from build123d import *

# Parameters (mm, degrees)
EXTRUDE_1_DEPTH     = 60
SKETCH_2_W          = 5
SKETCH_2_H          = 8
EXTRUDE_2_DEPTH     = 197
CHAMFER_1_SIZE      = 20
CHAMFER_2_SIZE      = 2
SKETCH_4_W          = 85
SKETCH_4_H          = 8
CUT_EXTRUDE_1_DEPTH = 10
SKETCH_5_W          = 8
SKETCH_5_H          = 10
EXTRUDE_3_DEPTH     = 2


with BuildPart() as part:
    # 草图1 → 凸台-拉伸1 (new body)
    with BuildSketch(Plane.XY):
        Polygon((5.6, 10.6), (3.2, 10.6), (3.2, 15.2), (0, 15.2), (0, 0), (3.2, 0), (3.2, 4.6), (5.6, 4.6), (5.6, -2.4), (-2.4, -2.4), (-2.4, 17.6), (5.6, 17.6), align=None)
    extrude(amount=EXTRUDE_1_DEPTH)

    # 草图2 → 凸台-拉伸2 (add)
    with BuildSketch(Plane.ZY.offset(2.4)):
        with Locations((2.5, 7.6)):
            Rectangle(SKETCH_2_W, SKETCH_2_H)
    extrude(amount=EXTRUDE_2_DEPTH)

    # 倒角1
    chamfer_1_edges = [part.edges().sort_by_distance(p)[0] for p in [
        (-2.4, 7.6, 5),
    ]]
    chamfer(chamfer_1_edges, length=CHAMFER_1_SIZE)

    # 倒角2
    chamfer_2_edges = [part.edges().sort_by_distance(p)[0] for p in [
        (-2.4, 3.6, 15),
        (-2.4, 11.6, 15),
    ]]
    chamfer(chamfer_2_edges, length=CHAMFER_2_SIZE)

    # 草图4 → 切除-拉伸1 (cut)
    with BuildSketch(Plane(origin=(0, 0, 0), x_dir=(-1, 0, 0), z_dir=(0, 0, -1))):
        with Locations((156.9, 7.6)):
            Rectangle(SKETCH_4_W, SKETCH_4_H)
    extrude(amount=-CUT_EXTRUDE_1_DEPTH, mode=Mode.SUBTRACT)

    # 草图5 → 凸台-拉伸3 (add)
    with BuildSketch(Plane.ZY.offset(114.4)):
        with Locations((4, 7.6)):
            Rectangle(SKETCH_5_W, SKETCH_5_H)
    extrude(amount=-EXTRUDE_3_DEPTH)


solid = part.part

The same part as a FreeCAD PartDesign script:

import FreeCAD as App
import Part
import Sketcher
from FreeCAD import Vector


def edges_at(feature, points):
    """Names of the edges that pass closest to the given points."""
    edges = feature.Shape.Edges
    near = lambda p: min(range(len(edges)), key=lambda i: edges[i].distToShape(Part.Vertex(*p))[0])
    return sorted({f"Edge{near(p) + 1}" for p in points})


def add_polygon(sketch, points):
    """Adds a closed chain of lines whose ends are joined by coincident constraints."""
    first, n = sketch.GeometryCount, len(points)
    for a, b in zip(points, points[1:] + points[:1]):
        sketch.addGeometry(Part.LineSegment(App.Vector(*a, 0), App.Vector(*b, 0)), False)
    for i in range(n):
        sketch.addConstraint(Sketcher.Constraint("Coincident", first + i, 2, first + (i + 1) % n, 1))

doc = App.newDocument("Part")
body = doc.addObject("PartDesign::Body", "Body")

# Sketch on XY plane
sketch1 = body.newObject("Sketcher::SketchObject", "Sketch")
sketch1.AttachmentSupport = (doc.getObject("XY_Plane"), [""])
sketch1.MapMode = "FlatFace"
add_polygon(sketch1, [(3.2, 10.6), (5.6, 10.6), (5.6, 17.6), (-2.4, 17.6), (-2.4, -2.4), (5.6, -2.4), (5.6, 4.6), (3.2, 4.6), (3.2, 0), (0, 0), (0, 15.2), (3.2, 15.2)])  # lines 0-11
sketch1.addConstraint(Sketcher.Constraint("Horizontal", 0))
sketch1.addConstraint(Sketcher.Constraint("Vertical", 1))
sketch1.addConstraint(Sketcher.Constraint("Horizontal", 2))
sketch1.addConstraint(Sketcher.Constraint("Vertical", 3))
sketch1.addConstraint(Sketcher.Constraint("Horizontal", 4))
sketch1.addConstraint(Sketcher.Constraint("Vertical", 5))
sketch1.addConstraint(Sketcher.Constraint("Horizontal", 6))
sketch1.addConstraint(Sketcher.Constraint("Vertical", 7))
sketch1.addConstraint(Sketcher.Constraint("Horizontal", 8))
sketch1.addConstraint(Sketcher.Constraint("Vertical", 9))
sketch1.addConstraint(Sketcher.Constraint("Horizontal", 10))
sketch1.addConstraint(Sketcher.Constraint("Vertical", 11))
sketch1.addConstraint(Sketcher.Constraint("Coincident", 8, 2, -1, 1))
sketch1.addConstraint(Sketcher.Constraint("Vertical", 1, 2, 4, 2))
sketch1.addConstraint(Sketcher.Constraint("Vertical", 7, 2, 10, 2))
sketch1.addConstraint(Sketcher.Constraint("Equal", 1, 5))
sketch1.addConstraint(Sketcher.Constraint("Equal", 7, 11))
sketch1.addConstraint(Sketcher.Constraint("DistanceX", 2, 2, 2, 1, 8.0))
sketch1.addConstraint(Sketcher.Constraint("DistanceY", 1, 1, 1, 2, 7.0))
sketch1.addConstraint(Sketcher.Constraint("DistanceY", 3, 2, 3, 1, 20.0))
sketch1.addConstraint(Sketcher.Constraint("DistanceX", 0, 1, 0, 2, 2.4))
sketch1.addConstraint(Sketcher.Constraint("DistanceX", 8, 2, 8, 1, 3.2))
sketch1.addConstraint(Sketcher.Constraint("DistanceY", 7, 2, 7, 1, 4.6))
pad1 = body.newObject("PartDesign::Pad", "Pad")
pad1.Profile = sketch1
pad1.Length = 60

# Sketch on YZ plane
sketch2 = body.newObject("Sketcher::SketchObject", "Sketch001")
sketch2.AttachmentSupport = (doc.getObject("YZ_Plane"), [""])
sketch2.MapMode = "FlatFace"
sketch2.AttachmentOffset = App.Placement(Vector(0, 0, -2.4), App.Rotation())
add_polygon(sketch2, [(12, 0), (4, 0), (4, 5), (12, 5)])  # lines 0-3
sketch2.addConstraint(Sketcher.Constraint("Horizontal", 0))
sketch2.addConstraint(Sketcher.Constraint("Vertical", 1))
sketch2.addConstraint(Sketcher.Constraint("Horizontal", 2))
sketch2.addConstraint(Sketcher.Constraint("Vertical", 3))
sketch2.addConstraint(Sketcher.Constraint("PointOnObject", 0, 2, -1))
sketch2.addConstraint(Sketcher.Constraint("DistanceX", 0, 2, 0, 1, 8.0))
sketch2.addConstraint(Sketcher.Constraint("DistanceY", 1, 1, 1, 2, 5.0))
sketch2.addConstraint(Sketcher.Constraint("DistanceX", -1, 1, 0, 2, 3.6))
pad2 = body.newObject("PartDesign::Pad", "Pad001")
pad2.Profile = sketch2
pad2.Length = 197
pad2.Reversed = True
doc.recompute()

chamfer = body.newObject("PartDesign::Chamfer", "Chamfer")
chamfer.Base = (pad2, edges_at(pad2, [(-2.4, 7.6, 5)]))
chamfer.Size = 20
doc.recompute()

chamfer2 = body.newObject("PartDesign::Chamfer", "Chamfer001")
chamfer2.Base = (chamfer, edges_at(chamfer, [(-2.4, 3.6, 12.5), (-2.4, 11.6, 12.5)]))
chamfer2.Size = 2

# Sketch on XY plane
sketch3 = body.newObject("Sketcher::SketchObject", "Sketch002")
sketch3.AttachmentSupport = (doc.getObject("XY_Plane"), [""])
sketch3.MapMode = "FlatFace"
add_polygon(sketch3, [(-114, 12), (-114, 4), (-199, 4), (-199, 12)])  # lines 0-3
sketch3.addConstraint(Sketcher.Constraint("Vertical", 0))
sketch3.addConstraint(Sketcher.Constraint("Horizontal", 1))
sketch3.addConstraint(Sketcher.Constraint("Vertical", 2))
sketch3.addConstraint(Sketcher.Constraint("Horizontal", 3))
sketch3.addConstraint(Sketcher.Constraint("DistanceX", 1, 2, 1, 1, 85.0))
sketch3.addConstraint(Sketcher.Constraint("DistanceY", 0, 2, 0, 1, 8.0))
sketch3.addConstraint(Sketcher.Constraint("DistanceX", 0, 2, -1, 1, 114.4))
sketch3.addConstraint(Sketcher.Constraint("DistanceY", -1, 1, 0, 2, 3.6))
pocket1 = body.newObject("PartDesign::Pocket", "Pocket")
pocket1.Profile = sketch3
pocket1.Length = 10
pocket1.Reversed = True

# Sketch on YZ plane
sketch4 = body.newObject("Sketcher::SketchObject", "Sketch003")
sketch4.AttachmentSupport = (doc.getObject("YZ_Plane"), [""])
sketch4.MapMode = "FlatFace"
sketch4.AttachmentOffset = App.Placement(Vector(0, 0, -114.4), App.Rotation())
add_polygon(sketch4, [(13, 0), (3, 0), (3, 8), (13, 8)])  # lines 0-3
sketch4.addConstraint(Sketcher.Constraint("Horizontal", 0))
sketch4.addConstraint(Sketcher.Constraint("Vertical", 1))
sketch4.addConstraint(Sketcher.Constraint("Horizontal", 2))
sketch4.addConstraint(Sketcher.Constraint("Vertical", 3))
sketch4.addConstraint(Sketcher.Constraint("PointOnObject", 0, 2, -1))
sketch4.addConstraint(Sketcher.Constraint("DistanceX", 0, 2, 0, 1, 10.0))
sketch4.addConstraint(Sketcher.Constraint("DistanceY", 1, 1, 1, 2, 8.0))
sketch4.addConstraint(Sketcher.Constraint("DistanceX", -1, 1, 0, 2, 2.6))
pad3 = body.newObject("PartDesign::Pad", "Pad002")
pad3.Profile = sketch4
pad3.Length = 2

doc.recompute()
